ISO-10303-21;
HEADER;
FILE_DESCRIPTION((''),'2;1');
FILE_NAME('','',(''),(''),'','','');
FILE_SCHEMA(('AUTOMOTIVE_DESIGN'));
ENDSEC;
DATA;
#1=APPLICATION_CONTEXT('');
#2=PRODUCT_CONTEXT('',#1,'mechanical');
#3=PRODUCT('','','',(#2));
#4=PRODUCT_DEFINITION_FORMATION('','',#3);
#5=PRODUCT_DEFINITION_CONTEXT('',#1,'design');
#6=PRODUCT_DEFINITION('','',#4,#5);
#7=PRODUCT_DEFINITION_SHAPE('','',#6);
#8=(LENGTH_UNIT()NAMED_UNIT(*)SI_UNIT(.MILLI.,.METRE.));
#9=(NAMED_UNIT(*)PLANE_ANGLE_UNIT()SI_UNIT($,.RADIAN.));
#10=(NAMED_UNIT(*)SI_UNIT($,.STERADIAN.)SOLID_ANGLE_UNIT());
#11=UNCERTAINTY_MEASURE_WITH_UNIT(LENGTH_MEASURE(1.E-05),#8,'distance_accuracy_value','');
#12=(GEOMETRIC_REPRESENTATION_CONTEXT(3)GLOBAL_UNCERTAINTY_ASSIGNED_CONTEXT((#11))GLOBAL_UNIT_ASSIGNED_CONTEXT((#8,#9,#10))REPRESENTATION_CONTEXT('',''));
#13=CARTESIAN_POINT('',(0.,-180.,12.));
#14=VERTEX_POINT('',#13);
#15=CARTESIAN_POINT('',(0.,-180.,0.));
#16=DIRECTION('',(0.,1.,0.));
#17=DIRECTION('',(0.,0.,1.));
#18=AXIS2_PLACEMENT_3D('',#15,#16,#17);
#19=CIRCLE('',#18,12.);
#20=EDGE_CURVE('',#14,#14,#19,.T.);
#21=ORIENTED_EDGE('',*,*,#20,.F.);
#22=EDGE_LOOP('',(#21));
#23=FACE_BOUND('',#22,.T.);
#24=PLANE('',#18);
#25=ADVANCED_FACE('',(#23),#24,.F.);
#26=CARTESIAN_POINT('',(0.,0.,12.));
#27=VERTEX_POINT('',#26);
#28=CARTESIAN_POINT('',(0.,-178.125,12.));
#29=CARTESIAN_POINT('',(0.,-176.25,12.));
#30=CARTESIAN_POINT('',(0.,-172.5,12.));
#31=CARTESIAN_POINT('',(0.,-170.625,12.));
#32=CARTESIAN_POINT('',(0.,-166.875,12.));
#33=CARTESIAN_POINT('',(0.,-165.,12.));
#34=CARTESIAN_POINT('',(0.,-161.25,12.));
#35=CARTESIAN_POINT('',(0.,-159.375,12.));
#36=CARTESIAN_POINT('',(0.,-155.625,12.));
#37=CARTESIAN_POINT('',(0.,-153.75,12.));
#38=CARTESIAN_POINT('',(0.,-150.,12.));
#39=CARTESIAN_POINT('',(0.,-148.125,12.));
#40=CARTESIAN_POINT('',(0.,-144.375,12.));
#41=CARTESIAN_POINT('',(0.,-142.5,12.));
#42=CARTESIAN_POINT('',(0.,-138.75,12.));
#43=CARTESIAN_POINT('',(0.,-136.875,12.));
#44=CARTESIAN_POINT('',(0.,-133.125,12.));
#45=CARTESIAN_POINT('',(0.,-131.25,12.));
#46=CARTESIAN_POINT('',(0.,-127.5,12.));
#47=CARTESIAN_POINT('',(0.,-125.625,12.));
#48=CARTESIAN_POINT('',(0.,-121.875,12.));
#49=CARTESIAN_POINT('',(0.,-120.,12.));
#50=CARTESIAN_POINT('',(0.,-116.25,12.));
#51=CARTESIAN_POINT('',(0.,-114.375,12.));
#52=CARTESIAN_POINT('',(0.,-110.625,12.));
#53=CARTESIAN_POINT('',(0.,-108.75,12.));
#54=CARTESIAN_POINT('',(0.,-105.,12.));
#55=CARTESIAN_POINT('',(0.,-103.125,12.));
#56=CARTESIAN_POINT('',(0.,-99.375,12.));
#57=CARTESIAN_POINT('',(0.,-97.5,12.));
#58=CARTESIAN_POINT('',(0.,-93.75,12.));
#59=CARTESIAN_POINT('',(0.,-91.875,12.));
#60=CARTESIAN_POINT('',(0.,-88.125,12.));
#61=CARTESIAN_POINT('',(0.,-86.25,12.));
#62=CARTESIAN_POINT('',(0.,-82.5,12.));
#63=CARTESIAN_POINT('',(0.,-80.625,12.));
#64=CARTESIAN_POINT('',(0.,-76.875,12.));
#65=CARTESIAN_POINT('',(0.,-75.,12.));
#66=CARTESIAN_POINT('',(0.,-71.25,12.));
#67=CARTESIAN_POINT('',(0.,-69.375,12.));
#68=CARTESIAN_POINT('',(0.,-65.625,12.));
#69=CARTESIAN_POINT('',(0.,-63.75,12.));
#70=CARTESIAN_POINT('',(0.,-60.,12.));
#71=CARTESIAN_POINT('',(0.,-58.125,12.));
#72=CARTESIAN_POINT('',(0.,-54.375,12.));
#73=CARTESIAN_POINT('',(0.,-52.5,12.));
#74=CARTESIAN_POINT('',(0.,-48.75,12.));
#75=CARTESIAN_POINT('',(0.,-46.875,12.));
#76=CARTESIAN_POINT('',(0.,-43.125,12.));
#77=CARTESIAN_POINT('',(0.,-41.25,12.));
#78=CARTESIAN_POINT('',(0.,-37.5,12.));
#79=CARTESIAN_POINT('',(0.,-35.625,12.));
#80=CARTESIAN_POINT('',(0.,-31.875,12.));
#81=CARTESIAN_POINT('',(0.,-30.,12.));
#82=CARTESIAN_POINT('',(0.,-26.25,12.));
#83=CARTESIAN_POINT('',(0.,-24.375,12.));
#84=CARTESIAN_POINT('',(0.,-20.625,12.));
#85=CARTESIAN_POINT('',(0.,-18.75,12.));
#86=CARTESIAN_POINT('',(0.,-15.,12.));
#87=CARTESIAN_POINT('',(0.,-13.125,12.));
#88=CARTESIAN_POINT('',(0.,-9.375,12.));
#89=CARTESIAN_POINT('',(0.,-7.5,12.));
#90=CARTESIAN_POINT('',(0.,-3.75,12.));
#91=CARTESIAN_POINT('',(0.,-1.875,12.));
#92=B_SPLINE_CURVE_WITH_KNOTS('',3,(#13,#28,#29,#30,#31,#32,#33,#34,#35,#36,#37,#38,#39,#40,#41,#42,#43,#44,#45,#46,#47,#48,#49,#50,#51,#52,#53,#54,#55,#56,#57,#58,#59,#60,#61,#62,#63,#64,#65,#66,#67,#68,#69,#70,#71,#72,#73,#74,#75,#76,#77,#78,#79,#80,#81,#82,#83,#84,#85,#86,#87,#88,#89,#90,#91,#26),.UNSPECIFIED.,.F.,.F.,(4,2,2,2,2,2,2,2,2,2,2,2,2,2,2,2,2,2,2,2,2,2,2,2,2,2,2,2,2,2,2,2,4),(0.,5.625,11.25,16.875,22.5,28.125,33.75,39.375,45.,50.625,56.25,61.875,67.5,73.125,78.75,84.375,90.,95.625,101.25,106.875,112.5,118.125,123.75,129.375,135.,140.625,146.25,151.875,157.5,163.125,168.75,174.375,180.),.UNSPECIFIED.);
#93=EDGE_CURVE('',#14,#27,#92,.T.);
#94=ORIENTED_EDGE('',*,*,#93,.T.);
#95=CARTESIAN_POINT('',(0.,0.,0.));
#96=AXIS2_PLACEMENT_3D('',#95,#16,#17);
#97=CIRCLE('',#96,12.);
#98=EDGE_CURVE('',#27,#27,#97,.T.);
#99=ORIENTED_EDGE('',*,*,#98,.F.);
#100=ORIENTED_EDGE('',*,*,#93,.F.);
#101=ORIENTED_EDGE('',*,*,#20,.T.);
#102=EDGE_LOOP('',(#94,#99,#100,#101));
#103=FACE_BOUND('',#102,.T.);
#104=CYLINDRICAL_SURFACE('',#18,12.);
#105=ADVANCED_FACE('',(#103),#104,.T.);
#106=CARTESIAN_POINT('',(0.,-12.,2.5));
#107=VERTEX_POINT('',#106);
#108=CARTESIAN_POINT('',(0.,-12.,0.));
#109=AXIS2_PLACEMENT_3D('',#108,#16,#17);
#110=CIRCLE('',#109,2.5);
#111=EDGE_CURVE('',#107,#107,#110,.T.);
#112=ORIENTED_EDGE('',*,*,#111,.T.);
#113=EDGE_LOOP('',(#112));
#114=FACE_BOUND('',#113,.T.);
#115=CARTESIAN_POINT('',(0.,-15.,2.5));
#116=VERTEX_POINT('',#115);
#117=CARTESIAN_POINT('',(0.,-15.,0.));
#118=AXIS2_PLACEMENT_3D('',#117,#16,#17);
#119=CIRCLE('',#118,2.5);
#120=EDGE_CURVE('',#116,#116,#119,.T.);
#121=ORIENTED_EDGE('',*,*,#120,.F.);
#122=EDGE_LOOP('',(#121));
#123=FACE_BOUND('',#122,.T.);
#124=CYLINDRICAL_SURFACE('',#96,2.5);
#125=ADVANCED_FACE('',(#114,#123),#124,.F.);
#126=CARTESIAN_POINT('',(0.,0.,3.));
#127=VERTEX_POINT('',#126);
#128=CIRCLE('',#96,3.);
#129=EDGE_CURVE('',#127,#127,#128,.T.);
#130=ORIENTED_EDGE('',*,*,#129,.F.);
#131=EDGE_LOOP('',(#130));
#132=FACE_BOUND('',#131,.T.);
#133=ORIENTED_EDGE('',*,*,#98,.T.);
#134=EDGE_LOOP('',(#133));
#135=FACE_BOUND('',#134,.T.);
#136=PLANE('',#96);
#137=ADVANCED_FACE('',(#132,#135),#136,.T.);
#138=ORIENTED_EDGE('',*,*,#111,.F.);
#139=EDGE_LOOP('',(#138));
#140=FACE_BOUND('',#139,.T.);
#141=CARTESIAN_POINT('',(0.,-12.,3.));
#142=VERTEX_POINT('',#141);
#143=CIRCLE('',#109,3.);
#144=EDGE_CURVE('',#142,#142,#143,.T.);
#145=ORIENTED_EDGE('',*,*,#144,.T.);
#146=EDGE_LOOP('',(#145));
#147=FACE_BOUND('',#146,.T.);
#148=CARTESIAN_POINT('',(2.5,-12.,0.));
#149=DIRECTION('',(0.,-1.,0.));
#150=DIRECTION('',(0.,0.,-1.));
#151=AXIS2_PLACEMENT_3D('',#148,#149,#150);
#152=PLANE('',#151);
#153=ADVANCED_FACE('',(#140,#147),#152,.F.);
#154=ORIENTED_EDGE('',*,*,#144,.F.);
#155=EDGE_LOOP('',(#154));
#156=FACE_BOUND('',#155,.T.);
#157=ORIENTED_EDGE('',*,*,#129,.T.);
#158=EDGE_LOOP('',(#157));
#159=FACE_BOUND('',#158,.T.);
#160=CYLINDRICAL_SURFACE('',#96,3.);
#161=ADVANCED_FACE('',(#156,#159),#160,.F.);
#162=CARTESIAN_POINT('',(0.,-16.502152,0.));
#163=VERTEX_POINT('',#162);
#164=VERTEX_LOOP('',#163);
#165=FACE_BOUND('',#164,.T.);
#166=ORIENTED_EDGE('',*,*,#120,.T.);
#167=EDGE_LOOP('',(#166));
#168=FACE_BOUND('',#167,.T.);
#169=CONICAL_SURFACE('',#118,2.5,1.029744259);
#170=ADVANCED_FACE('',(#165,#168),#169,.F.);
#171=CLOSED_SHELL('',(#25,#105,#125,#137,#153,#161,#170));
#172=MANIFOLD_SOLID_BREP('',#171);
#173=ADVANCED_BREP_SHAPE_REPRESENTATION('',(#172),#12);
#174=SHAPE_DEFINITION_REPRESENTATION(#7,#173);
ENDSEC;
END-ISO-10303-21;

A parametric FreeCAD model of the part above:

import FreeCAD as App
import Part
import Sketcher
from FreeCAD import Vector

doc = App.newDocument("Part")
body = doc.addObject("PartDesign::Body", "Body")

# Sketch on XZ plane
sketch1 = body.newObject("Sketcher::SketchObject", "Sketch")
sketch1.AttachmentSupport = (doc.getObject("XZ_Plane"), [""])
sketch1.MapMode = "FlatFace"
sketch1.addGeometry(Part.Circle(Vector(0, 0, 0), Vector(0, 0, 1), 12), False)
sketch1.addConstraint(Sketcher.Constraint("Coincident", 0, 3, -1, 1))
sketch1.addConstraint(Sketcher.Constraint("Diameter", 0, 24.0))
pad1 = body.newObject("PartDesign::Pad", "Pad")
pad1.Profile = sketch1
pad1.Length = 180

# Sketch on XZ plane
sketch2 = body.newObject("Sketcher::SketchObject", "Sketch001")
sketch2.AttachmentSupport = (doc.getObject("XZ_Plane"), [""])
sketch2.MapMode = "FlatFace"
sketch2.addGeometry(Part.Circle(Vector(0, 0, 0), Vector(0, 0, 1), 2.5), False)
sketch2.addConstraint(Sketcher.Constraint("Coincident", 0, 3, -1, 1))
sketch2.addConstraint(Sketcher.Constraint("Diameter", 0, 5.0))
doc.recompute()
hole = body.newObject("PartDesign::Hole", "Hole")
hole.Profile = sketch2
hole.ThreadType = "None"
hole.Diameter = 5
hole.DepthType = "Dimension"
hole.Depth = 15
hole.DrillPoint = "Angled"
hole.DrillPointAngle = 118
hole.HoleCutType = "Counterbore"
hole.HoleCutDiameter = 6
hole.HoleCutDepth = 12
hole.Reversed = True

doc.recompute()
